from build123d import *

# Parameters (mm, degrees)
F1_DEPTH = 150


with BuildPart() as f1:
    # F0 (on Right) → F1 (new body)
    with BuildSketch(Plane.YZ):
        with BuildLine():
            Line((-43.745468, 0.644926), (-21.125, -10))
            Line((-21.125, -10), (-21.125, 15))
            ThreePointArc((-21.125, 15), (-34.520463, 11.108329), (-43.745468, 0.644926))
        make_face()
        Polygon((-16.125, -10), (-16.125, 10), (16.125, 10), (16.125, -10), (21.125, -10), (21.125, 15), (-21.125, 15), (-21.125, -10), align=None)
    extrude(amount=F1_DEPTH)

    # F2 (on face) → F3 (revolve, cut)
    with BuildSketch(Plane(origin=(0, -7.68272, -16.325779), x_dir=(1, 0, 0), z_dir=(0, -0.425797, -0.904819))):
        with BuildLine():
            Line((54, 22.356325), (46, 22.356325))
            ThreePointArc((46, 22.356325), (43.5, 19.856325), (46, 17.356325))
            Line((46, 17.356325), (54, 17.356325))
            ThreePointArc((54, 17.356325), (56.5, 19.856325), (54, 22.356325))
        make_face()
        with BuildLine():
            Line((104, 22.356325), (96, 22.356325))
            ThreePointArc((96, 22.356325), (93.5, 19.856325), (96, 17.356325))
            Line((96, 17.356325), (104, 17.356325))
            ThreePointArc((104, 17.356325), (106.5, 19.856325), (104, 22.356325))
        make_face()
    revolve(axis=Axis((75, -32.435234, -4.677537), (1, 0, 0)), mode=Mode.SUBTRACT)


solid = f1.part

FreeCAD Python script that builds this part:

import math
import FreeCAD as App
import Part
import Sketcher

doc = App.newDocument("Part")
body = doc.addObject("PartDesign::Body", "Body")

# Sketch on YZ plane
sketch1 = body.newObject("Sketcher::SketchObject", "Sketch")
sketch1.AttachmentSupport = (doc.getObject("YZ_Plane"), [""])
sketch1.MapMode = "FlatFace"
sketch1.addGeometry([
    Part.LineSegment(App.Vector(-44, 1, 0), App.Vector(-21, -10, 0)),  # 0
    Part.LineSegment(App.Vector(-21, -10, 0), App.Vector(-16, -10, 0)),  # 1
    Part.LineSegment(App.Vector(-16, -10, 0), App.Vector(-16, 10, 0)),  # 2
    Part.LineSegment(App.Vector(-16, 10, 0), App.Vector(16, 10, 0)),  # 3
    Part.LineSegment(App.Vector(16, 10, 0), App.Vector(16, -10, 0)),  # 4
    Part.LineSegment(App.Vector(16, -10, 0), App.Vector(21, -10, 0)),  # 5
    Part.LineSegment(App.Vector(21, -10, 0), App.Vector(21, 15, 0)),  # 6
    Part.LineSegment(App.Vector(21, 15, 0), App.Vector(-21, 15, 0)),  # 7
    Part.ArcOfCircle(Part.Circle(App.Vector(-21, -10, 0), App.Vector(0, 0, 1), 25), math.radians(90), math.radians(155)),  # 8
], False)
sketch1.addConstraint([
    Sketcher.Constraint("Coincident", 0, 2, 1, 1),
    Sketcher.Constraint("Coincident", 1, 2, 2, 1),
    Sketcher.Constraint("Coincident", 2, 2, 3, 1),
    Sketcher.Constraint("Coincident", 3, 2, 4, 1),
    Sketcher.Constraint("Coincident", 4, 2, 5, 1),
    Sketcher.Constraint("Coincident", 5, 2, 6, 1),
    Sketcher.Constraint("Coincident", 6, 2, 7, 1),
    Sketcher.Constraint("Tangent", 7, 2, 8, 1),
    Sketcher.Constraint("Coincident", 8, 2, 0, 1),
    Sketcher.Constraint("Horizontal", 1),
    Sketcher.Constraint("Vertical", 2),
    Sketcher.Constraint("Horizontal", 3),
    Sketcher.Constraint("Vertical", 4),
    Sketcher.Constraint("Horizontal", 5),
    Sketcher.Constraint("Vertical", 6),
    Sketcher.Constraint("Horizontal", 7),
    Sketcher.Constraint("Coincident", 0, 2, 8, 3),
    Sketcher.Constraint("Symmetric", 1, 2, 3, 2, -1, 1),
    Sketcher.Constraint("Symmetric", 0, 2, 5, 2, -2),
    Sketcher.Constraint("DistanceX", 1, 1, 1, 2, 5.0),
    Sketcher.Constraint("DistanceY", 2, 1, 2, 2, 20.0),
    Sketcher.Constraint("DistanceY", 6, 1, 6, 2, 25.0),
    Sketcher.Constraint("DistanceX", 3, 1, 3, 2, 32.25),
    Sketcher.Constraint("DistanceX", 8, 2, 8, 3, 22.62047),
])
pad1 = body.newObject("PartDesign::Pad", "Pad")
pad1.Profile = sketch1
pad1.Length = 150

# Sketch on an angled plane
sketch2 = body.newObject("Sketcher::SketchObject", "Sketch001")
sketch2.Placement = App.Placement(App.Vector(0, -7.68272, -16.325779), App.Rotation(App.Vector(1, 0, 0), App.Vector(0, -0.90481877, 0.425796892), App.Vector(0, -0.425796892, -0.90481877), "ZXY"))
sketch2.addGeometry([
    Part.LineSegment(App.Vector(54, 22.4, 0), App.Vector(46, 22.4, 0)),  # 0
    Part.ArcOfCircle(Part.Circle(App.Vector(46, 19.9, 0), App.Vector(0, 0, 1), 2.5), math.radians(90), math.radians(270)),  # 1
    Part.LineSegment(App.Vector(46, 17.4, 0), App.Vector(54, 17.4, 0)),  # 2
    Part.ArcOfCircle(Part.Circle(App.Vector(54, 19.9, 0), App.Vector(0, 0, 1), 2.5), math.radians(-90), math.radians(90)),  # 3
    Part.LineSegment(App.Vector(104, 22.4, 0), App.Vector(96, 22.4, 0)),  # 4
    Part.ArcOfCircle(Part.Circle(App.Vector(96, 19.9, 0), App.Vector(0, 0, 1), 2.5), math.radians(90), math.radians(270)),  # 5
    Part.LineSegment(App.Vector(96, 17.4, 0), App.Vector(104, 17.4, 0)),  # 6
    Part.ArcOfCircle(Part.Circle(App.Vector(104, 19.9, 0), App.Vector(0, 0, 1), 2.5), math.radians(-90), math.radians(90)),  # 7
], False)
sketch2.addGeometry(Part.LineSegment(App.Vector(46, 27.4, 0), App.Vector(104, 27.4, 0)), True)  # axis
sketch2.addConstraint([
    Sketcher.Constraint("Tangent", 0, 2, 1, 1),
    Sketcher.Constraint("Tangent", 1, 2, 2, 1),
    Sketcher.Constraint("Tangent", 2, 2, 3, 1),
    Sketcher.Constraint("Tangent", 3, 2, 0, 1),
    Sketcher.Constraint("Tangent", 4, 2, 5, 1),
    Sketcher.Constraint("Tangent", 5, 2, 6, 1),
    Sketcher.Constraint("Tangent", 6, 2, 7, 1),
    Sketcher.Constraint("Tangent", 7, 2, 4, 1),
    Sketcher.Constraint("Horizontal", 0),
    Sketcher.Constraint("Horizontal", 2),
    Sketcher.Constraint("Horizontal", 4),
    Sketcher.Constraint("Horizontal", 6),
    Sketcher.Constraint("Horizontal", 8),
    Sketcher.Constraint("Equal", 3, 5),
    Sketcher.Constraint("Horizontal", 3, 3, 5, 3),
    Sketcher.Constraint("Vertical", 1, 2, 8, 1),
    Sketcher.Constraint("Vertical", 7, 2, 8, 2),
    Sketcher.Constraint("Equal", 2, 4),
    Sketcher.Constraint("Radius", 1, 2.5),
    Sketcher.Constraint("DistanceX", 0, 2, 0, 1, 8.0),
    Sketcher.Constraint("DistanceX", 8, 1, 8, 2, 58.0),
    Sketcher.Constraint("DistanceX", -1, 1, 1, 3, 46.0),
    Sketcher.Constraint("DistanceY", 0, 2, 8, 1, 5.0),
    Sketcher.Constraint("DistanceY", -1, 1, 1, 3, 19.856325),
])
groove = body.newObject("PartDesign::Groove", "Groove")
groove.Profile = sketch2
groove.ReferenceAxis = (sketch2, ["Axis0"])
groove.Angle = 360

doc.recompute()
